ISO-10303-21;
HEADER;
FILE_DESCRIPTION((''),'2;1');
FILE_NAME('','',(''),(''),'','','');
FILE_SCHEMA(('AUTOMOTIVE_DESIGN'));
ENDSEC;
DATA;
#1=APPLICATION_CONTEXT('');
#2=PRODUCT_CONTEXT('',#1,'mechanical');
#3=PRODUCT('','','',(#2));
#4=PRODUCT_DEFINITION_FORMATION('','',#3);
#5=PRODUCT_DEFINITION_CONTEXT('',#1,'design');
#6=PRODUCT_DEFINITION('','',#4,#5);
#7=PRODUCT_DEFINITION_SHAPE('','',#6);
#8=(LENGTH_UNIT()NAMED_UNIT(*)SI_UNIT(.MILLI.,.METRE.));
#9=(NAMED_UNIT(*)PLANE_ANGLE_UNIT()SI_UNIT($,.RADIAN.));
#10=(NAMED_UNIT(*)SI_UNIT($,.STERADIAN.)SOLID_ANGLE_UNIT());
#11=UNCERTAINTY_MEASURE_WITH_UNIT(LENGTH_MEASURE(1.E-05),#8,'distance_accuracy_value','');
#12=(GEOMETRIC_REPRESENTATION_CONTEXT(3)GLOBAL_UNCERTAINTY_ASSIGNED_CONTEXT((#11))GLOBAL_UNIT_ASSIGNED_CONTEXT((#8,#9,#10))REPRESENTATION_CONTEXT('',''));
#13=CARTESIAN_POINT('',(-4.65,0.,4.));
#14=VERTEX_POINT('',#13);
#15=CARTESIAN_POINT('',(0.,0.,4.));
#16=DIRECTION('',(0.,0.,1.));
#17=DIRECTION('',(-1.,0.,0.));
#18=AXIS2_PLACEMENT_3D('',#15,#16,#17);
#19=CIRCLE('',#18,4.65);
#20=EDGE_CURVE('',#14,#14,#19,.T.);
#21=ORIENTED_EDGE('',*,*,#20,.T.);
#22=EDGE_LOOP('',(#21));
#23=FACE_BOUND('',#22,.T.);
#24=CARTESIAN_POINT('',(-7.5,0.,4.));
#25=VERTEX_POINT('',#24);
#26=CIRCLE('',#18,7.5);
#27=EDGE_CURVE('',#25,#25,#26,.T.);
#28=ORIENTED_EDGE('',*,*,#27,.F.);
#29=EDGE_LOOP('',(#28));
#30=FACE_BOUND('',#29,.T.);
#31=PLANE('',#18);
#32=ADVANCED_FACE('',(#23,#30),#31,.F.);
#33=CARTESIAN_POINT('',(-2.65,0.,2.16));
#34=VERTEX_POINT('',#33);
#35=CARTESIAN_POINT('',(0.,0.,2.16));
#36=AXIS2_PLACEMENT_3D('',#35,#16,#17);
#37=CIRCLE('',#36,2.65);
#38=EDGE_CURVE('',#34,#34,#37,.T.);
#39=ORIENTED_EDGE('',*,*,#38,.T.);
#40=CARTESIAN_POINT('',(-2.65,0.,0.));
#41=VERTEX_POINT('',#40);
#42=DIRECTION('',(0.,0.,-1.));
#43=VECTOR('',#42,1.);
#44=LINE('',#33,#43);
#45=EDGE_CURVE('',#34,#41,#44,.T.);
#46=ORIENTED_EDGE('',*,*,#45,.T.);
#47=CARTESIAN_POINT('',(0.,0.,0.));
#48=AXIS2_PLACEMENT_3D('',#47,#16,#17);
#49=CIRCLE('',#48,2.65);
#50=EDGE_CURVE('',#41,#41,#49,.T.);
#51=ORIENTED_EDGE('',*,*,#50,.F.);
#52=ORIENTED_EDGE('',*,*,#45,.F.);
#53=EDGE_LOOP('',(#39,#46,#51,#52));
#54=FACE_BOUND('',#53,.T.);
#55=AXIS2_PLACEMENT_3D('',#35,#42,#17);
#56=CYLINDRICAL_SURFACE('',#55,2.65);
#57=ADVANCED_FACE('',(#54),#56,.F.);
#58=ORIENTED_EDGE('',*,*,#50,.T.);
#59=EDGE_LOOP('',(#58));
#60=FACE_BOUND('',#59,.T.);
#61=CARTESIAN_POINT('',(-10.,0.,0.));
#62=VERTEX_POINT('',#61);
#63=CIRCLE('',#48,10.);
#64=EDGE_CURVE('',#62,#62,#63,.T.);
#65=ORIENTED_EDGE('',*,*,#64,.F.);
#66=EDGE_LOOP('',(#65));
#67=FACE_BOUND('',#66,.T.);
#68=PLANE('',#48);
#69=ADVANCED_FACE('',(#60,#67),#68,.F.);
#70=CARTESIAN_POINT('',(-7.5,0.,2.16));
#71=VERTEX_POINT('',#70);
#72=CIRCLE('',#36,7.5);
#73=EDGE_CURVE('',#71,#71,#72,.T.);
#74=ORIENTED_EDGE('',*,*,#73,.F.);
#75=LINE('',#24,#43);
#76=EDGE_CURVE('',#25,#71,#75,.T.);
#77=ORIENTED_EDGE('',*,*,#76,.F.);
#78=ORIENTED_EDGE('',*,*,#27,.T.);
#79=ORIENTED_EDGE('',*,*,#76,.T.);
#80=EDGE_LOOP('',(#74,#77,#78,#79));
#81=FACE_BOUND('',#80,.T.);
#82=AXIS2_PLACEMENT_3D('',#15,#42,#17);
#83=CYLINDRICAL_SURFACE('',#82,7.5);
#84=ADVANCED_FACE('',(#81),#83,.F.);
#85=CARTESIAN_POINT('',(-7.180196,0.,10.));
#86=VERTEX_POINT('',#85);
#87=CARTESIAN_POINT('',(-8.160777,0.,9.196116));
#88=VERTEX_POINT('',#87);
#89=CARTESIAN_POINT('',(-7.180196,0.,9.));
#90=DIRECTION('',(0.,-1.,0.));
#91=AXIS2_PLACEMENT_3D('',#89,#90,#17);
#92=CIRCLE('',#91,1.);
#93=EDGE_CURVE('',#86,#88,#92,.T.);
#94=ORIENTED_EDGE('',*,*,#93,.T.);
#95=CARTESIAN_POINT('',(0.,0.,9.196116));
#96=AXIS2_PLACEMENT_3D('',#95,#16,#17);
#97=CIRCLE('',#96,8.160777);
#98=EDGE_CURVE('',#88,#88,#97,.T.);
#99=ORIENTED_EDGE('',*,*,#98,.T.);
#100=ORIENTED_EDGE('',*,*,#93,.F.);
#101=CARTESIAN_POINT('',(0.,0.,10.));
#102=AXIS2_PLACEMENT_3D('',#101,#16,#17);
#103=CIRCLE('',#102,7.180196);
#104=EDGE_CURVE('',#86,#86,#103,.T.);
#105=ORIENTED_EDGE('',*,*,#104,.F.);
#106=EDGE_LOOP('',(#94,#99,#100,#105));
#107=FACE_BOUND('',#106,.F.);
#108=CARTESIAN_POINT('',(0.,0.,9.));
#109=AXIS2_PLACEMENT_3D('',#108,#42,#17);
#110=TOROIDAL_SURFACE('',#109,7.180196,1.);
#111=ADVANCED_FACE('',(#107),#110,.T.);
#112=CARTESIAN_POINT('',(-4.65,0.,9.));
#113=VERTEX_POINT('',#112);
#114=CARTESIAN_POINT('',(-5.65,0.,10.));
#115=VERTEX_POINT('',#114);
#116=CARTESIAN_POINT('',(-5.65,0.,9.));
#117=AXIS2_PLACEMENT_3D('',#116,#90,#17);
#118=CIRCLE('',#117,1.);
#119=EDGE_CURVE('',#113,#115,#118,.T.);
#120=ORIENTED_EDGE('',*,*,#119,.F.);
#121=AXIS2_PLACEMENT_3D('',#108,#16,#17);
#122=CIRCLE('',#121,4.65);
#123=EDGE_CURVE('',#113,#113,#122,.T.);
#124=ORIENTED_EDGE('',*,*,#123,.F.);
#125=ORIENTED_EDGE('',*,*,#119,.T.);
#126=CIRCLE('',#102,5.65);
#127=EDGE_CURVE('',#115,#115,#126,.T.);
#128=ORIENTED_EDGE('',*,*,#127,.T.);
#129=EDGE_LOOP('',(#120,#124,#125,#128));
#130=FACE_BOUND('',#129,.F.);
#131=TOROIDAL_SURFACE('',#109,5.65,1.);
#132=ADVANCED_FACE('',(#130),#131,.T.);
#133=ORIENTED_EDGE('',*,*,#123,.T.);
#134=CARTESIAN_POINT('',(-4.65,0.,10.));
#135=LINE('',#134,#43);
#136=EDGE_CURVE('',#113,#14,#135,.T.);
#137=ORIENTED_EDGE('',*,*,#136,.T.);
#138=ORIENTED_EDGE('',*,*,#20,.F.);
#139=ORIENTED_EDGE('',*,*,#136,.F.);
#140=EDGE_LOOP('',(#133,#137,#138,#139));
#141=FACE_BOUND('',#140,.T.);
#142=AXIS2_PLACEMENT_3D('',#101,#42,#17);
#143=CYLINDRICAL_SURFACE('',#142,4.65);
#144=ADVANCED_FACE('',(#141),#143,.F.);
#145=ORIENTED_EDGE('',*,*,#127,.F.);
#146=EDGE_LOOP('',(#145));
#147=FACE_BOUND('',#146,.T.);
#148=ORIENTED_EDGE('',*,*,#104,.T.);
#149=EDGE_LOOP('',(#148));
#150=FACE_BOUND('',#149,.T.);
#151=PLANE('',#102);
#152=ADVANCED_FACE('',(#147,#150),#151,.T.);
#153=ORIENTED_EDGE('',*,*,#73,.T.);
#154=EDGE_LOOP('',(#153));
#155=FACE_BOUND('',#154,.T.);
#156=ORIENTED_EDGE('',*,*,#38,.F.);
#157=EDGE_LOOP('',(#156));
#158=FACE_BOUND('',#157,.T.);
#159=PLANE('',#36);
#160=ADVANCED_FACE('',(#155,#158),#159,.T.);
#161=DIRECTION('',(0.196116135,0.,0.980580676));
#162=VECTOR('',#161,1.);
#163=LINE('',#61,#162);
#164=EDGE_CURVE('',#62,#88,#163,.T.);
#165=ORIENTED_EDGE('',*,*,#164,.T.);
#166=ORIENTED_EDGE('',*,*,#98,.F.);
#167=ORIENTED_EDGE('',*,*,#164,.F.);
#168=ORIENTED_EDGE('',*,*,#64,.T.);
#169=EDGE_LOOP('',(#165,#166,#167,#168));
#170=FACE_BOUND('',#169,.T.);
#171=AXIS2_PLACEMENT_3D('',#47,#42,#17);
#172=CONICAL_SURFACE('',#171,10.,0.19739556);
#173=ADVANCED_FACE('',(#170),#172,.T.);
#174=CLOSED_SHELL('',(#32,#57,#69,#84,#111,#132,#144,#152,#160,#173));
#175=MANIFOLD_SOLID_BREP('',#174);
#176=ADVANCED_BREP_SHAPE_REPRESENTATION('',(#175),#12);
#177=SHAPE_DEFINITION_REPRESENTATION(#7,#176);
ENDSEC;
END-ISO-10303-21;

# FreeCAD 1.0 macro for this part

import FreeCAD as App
import Part
import Sketcher

V = App.Vector


def edges_at(feature, points):
    """Names of the edges that pass closest to the given points."""
    edges = feature.Shape.Edges
    near = lambda p: min(range(len(edges)), key=lambda i: edges[i].distToShape(Part.Vertex(*p))[0])
    return sorted({f"Edge{near(p) + 1}" for p in points})

doc = App.newDocument("Part")
body = doc.addObject("PartDesign::Body", "Body")

# Sketch on XZ plane
sketch1 = body.newObject("Sketcher::SketchObject", "Sketch")
sketch1.AttachmentSupport = (doc.getObject("XZ_Plane"), [""])
sketch1.MapMode = "FlatFace"
sketch1.addGeometry([
    Part.LineSegment(V(-2.6, 2.2, 0), V(-2.6, 0, 0)),  # 0
    Part.LineSegment(V(-2.6, 0, 0), V(-10, 0, 0)),  # 1
    Part.LineSegment(V(-10, 0, 0), V(-8, 10, 0)),  # 2
    Part.LineSegment(V(-8, 10, 0), V(-4.7, 10, 0)),  # 3
    Part.LineSegment(V(-4.7, 10, 0), V(-4.7, 4, 0)),  # 4
    Part.LineSegment(V(-4.7, 4, 0), V(-7.5, 4, 0)),  # 5
    Part.LineSegment(V(-7.5, 4, 0), V(-7.5, 2.2, 0)),  # 6
    Part.LineSegment(V(-7.5, 2.2, 0), V(-2.6, 2.2, 0)),  # 7
], False)
sketch1.addConstraint([
    Sketcher.Constraint("Coincident", 0, 2, 1, 1),
    Sketcher.Constraint("Coincident", 1, 2, 2, 1),
    Sketcher.Constraint("Coincident", 2, 2, 3, 1),
    Sketcher.Constraint("Coincident", 3, 2, 4, 1),
    Sketcher.Constraint("Coincident", 4, 2, 5, 1),
    Sketcher.Constraint("Coincident", 5, 2, 6, 1),
    Sketcher.Constraint("Coincident", 6, 2, 7, 1),
    Sketcher.Constraint("Coincident", 7, 2, 0, 1),
    Sketcher.Constraint("Vertical", 0),
    Sketcher.Constraint("Horizontal", 1),
    Sketcher.Constraint("Horizontal", 3),
    Sketcher.Constraint("Vertical", 4),
    Sketcher.Constraint("Horizontal", 5),
    Sketcher.Constraint("Vertical", 6),
    Sketcher.Constraint("Horizontal", 7),
    Sketcher.Constraint("PointOnObject", 0, 2, -1),
    Sketcher.Constraint("DistanceY", 4, 2, 4, 1, 6.0),
    Sketcher.Constraint("DistanceX", 1, 2, -1, 1, 10.0),
    Sketcher.Constraint("DistanceY", -1, 1, 2, 2, 10.0),
    Sketcher.Constraint("DistanceY", 0, 2, 0, 1, 2.16),
    Sketcher.Constraint("DistanceX", 2, 2, -1, 1, 8.0),
    Sketcher.Constraint("DistanceX", 3, 2, 0, 2, 2.0),
    Sketcher.Constraint("DistanceX", 1, 2, 1, 1, 7.35),
    Sketcher.Constraint("DistanceX", 5, 2, 5, 1, 2.85),
])
revolution = body.newObject("PartDesign::Revolution", "Revolution")
revolution.Profile = sketch1
revolution.ReferenceAxis = (sketch1, ["V_Axis"])
revolution.Angle = 360
doc.recompute()

fillet = body.newObject("PartDesign::Fillet", "Fillet")
fillet.Base = (revolution, edges_at(revolution, [(4.65, 0, 10), (8, 0, 10)]))
fillet.Radius = 1

doc.recompute()
